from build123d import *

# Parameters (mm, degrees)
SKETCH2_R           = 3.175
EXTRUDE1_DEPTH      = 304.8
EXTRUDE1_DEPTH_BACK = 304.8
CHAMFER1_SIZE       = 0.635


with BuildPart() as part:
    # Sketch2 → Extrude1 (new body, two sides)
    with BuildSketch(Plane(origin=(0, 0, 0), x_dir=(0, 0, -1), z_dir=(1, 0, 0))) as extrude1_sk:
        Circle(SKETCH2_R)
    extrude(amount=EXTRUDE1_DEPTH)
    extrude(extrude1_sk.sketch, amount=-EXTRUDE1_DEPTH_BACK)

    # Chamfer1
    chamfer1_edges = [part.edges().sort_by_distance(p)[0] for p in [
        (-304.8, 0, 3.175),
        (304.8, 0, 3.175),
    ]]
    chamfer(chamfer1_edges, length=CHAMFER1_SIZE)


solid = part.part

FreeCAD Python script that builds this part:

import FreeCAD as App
import Part
import Sketcher
from FreeCAD import Vector
Q = App.Units.Quantity


def edges_at(feature, points):
    """Names of the edges that pass closest to the given points."""
    edges = feature.Shape.Edges
    near = lambda p: min(range(len(edges)), key=lambda i: edges[i].distToShape(Part.Vertex(*p))[0])
    return sorted({f"Edge{near(p) + 1}" for p in points})

doc = App.newDocument("Part")
params = doc.addObject("Spreadsheet::Sheet", "Params")
for row, (alias, value) in enumerate([
    ("sketch1_diameter", "0.25 in"),
    ("pad1_length", "12 in"),
    ("pad1_length2", "12 in"),
    ("chamfer_size", "0.025 in"),
], start=1):
    params.set(f"A{row}", alias)
    params.set(f"B{row}", "=" + value)
    params.setAlias(f"B{row}", alias)

body = doc.addObject("PartDesign::Body", "Body")

# Sketch on YZ plane
sketch1 = body.newObject("Sketcher::SketchObject", "Sketch")
sketch1.AttachmentSupport = (doc.getObject("YZ_Plane"), [""])
sketch1.MapMode = "FlatFace"
sketch1.addGeometry(Part.Circle(Vector(0, 0, 0), Vector(0, 0, 1), 3.2), False)
sketch1.addConstraint([
    Sketcher.Constraint("Coincident", 0, 3, -1, 1),
    Sketcher.Constraint("Diameter", 0, Q("0.25 in")),
])
sketch1.setExpression("Constraints[1]", "Params.sketch1_diameter")
pad1 = body.newObject("PartDesign::Pad", "Pad")
pad1.Profile = sketch1
pad1.Type = "TwoLengths"
pad1.setExpression("Length", "Params.pad1_length")
pad1.setExpression("Length2", "Params.pad1_length2")
doc.recompute()

chamfer = body.newObject("PartDesign::Chamfer", "Chamfer")
chamfer.Base = (pad1, edges_at(pad1, [(-304.8, 0, 3.175), (304.8, 0, 3.175)]))
chamfer.setExpression("Size", "Params.chamfer_size")

doc.recompute()
